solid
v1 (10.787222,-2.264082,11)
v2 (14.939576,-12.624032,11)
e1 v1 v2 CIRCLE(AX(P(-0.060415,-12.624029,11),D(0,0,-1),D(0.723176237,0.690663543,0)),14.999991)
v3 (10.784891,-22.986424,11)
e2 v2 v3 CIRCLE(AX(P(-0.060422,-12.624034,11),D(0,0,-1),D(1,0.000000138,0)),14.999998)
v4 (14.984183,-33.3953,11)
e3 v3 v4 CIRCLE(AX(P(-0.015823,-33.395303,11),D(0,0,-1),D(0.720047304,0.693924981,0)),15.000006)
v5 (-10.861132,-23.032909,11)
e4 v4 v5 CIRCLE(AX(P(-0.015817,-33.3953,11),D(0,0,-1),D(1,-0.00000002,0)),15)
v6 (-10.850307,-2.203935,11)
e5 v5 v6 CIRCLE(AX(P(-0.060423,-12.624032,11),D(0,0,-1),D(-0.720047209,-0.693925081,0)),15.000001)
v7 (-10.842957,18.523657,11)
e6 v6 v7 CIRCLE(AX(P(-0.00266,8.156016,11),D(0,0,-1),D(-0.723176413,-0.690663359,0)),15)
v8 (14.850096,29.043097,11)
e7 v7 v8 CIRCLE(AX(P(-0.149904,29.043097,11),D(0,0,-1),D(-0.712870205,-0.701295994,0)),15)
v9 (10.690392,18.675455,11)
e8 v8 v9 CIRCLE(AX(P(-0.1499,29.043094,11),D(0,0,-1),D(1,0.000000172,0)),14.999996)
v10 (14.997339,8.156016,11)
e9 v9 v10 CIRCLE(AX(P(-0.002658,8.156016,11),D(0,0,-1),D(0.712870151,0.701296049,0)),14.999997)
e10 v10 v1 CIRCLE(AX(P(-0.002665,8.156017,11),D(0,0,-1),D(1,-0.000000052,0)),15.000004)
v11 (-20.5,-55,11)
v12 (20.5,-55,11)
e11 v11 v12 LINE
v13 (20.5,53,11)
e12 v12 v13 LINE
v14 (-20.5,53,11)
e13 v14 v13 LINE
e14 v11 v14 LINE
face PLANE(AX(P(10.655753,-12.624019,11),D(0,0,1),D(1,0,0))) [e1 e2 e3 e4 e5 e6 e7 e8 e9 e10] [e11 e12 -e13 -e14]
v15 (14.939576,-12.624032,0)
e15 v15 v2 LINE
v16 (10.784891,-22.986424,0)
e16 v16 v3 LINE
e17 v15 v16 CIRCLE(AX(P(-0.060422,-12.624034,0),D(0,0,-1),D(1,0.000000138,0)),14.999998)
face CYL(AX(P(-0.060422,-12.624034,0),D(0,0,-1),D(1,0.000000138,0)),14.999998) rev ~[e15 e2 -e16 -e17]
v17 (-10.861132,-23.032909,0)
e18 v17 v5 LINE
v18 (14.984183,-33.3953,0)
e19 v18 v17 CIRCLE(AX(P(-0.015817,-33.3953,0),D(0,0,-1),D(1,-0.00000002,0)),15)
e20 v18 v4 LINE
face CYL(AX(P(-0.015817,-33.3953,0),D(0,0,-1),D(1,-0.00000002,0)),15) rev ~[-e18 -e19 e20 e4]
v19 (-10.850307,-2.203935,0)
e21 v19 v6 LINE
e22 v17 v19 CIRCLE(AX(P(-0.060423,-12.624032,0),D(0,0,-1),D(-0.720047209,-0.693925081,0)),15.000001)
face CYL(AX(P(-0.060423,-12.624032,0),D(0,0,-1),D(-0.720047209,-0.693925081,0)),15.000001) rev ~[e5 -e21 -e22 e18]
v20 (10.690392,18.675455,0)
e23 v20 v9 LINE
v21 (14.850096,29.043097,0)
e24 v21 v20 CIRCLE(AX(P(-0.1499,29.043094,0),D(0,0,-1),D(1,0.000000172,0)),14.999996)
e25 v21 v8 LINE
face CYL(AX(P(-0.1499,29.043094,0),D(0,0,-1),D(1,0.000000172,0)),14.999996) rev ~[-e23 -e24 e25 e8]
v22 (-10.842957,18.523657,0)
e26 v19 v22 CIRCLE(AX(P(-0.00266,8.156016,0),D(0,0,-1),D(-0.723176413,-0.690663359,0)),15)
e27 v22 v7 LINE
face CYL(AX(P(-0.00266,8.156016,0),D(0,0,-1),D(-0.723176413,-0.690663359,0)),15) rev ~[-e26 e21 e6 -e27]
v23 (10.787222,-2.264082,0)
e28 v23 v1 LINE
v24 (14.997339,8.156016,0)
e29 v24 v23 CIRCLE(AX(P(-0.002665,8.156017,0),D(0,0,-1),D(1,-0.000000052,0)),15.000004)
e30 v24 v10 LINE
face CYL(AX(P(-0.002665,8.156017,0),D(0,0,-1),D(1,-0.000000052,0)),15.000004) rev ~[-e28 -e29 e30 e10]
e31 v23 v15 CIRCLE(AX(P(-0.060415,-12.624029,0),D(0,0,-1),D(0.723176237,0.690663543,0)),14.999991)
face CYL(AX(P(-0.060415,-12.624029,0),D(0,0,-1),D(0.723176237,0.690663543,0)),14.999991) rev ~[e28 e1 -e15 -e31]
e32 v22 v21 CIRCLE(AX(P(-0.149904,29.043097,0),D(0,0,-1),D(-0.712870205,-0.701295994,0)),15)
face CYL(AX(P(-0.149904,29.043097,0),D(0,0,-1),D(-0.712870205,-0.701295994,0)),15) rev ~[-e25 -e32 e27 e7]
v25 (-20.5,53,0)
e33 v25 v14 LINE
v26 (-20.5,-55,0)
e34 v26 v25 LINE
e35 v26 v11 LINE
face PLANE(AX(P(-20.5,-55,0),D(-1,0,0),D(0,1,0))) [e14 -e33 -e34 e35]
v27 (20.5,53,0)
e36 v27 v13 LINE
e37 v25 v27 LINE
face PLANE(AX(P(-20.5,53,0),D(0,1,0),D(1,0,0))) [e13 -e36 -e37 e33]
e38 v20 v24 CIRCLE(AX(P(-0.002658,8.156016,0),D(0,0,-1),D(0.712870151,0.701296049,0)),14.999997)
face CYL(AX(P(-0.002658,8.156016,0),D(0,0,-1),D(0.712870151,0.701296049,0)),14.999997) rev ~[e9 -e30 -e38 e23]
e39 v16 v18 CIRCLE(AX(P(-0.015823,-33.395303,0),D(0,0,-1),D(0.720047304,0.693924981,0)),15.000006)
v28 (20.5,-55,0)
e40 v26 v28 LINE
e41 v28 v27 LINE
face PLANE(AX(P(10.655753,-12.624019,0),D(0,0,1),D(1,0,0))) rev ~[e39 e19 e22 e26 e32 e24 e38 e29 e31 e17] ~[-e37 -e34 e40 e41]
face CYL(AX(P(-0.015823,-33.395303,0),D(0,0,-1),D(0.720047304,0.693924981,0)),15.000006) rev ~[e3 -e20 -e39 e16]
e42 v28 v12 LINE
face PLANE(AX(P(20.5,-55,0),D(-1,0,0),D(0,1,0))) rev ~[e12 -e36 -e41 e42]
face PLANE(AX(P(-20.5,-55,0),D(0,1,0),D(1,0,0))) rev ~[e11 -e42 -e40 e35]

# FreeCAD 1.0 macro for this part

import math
import FreeCAD as App
import Part
import Sketcher
Q = App.Units.Quantity

doc = App.newDocument("Part")
body = doc.addObject("PartDesign::Body", "Body")

# Sketch on XY plane
sketch1 = body.newObject("Sketcher::SketchObject", "Sketch")
sketch1.AttachmentSupport = (doc.getObject("XY_Plane"), [""])
sketch1.MapMode = "FlatFace"
sketch1.addGeometry([
    Part.LineSegment(App.Vector(-20, 53, 0), App.Vector(-20, -55, 0)),  # 0
    Part.LineSegment(App.Vector(-20, -55, 0), App.Vector(20, -55, 0)),  # 1
    Part.LineSegment(App.Vector(20, -55, 0), App.Vector(20, 53, 0)),  # 2
    Part.LineSegment(App.Vector(20, 53, 0), App.Vector(-20, 53, 0)),  # 3
    Part.ArcOfCircle(Part.Circle(App.Vector(0, 8, 0), App.Vector(0, 0, 1), 15), math.radians(0), math.radians(45)),  # 4
    Part.ArcOfCircle(Part.Circle(App.Vector(0, 8, 0), App.Vector(0, 0, 1), 15), math.radians(-44), math.radians(0)),  # 5
    Part.ArcOfCircle(Part.Circle(App.Vector(0, -13, 0), App.Vector(0, 0, 1), 15), math.radians(0), math.radians(44)),  # 6
    Part.ArcOfCircle(Part.Circle(App.Vector(0, -13, 0), App.Vector(0, 0, 1), 15), math.radians(-44), math.radians(0)),  # 7
    Part.ArcOfCircle(Part.Circle(App.Vector(0, -33, 0), App.Vector(0, 0, 1), 15), math.radians(0), math.radians(44)),  # 8
    Part.ArcOfCircle(Part.Circle(App.Vector(0, -33, 0), App.Vector(0, 0, 1), 15), math.radians(136), math.radians(360)),  # 9
    Part.ArcOfCircle(Part.Circle(App.Vector(0, -13, 0), App.Vector(0, 0, 1), 15), math.radians(136), math.radians(224)),  # 10
    Part.ArcOfCircle(Part.Circle(App.Vector(0, 8, 0), App.Vector(0, 0, 1), 15), math.radians(136), math.radians(224)),  # 11
    Part.ArcOfCircle(Part.Circle(App.Vector(0, 29, 0), App.Vector(0, 0, 1), 15), math.radians(0), math.radians(225)),  # 12
    Part.ArcOfCircle(Part.Circle(App.Vector(0, 29, 0), App.Vector(0, 0, 1), 15), math.radians(-44), math.radians(0)),  # 13
], False)
sketch1.addConstraint([
    Sketcher.Constraint("Coincident", 0, 2, 1, 1),
    Sketcher.Constraint("Coincident", 1, 2, 2, 1),
    Sketcher.Constraint("Coincident", 2, 2, 3, 1),
    Sketcher.Constraint("Coincident", 3, 2, 0, 1),
    Sketcher.Constraint("Tangent", 4, 1, 5, 2),
    Sketcher.Constraint("Coincident", 5, 1, 6, 2),
    Sketcher.Constraint("Tangent", 6, 1, 7, 2),
    Sketcher.Constraint("Coincident", 7, 1, 8, 2),
    Sketcher.Constraint("Tangent", 8, 1, 9, 2),
    Sketcher.Constraint("Coincident", 9, 1, 10, 2),
    Sketcher.Constraint("Coincident", 10, 1, 11, 2),
    Sketcher.Constraint("Coincident", 11, 1, 12, 2),
    Sketcher.Constraint("Tangent", 12, 1, 13, 2),
    Sketcher.Constraint("Coincident", 13, 1, 4, 2),
    Sketcher.Constraint("Vertical", 0),
    Sketcher.Constraint("Horizontal", 1),
    Sketcher.Constraint("Vertical", 2),
    Sketcher.Constraint("Horizontal", 3),
    Sketcher.Constraint("Coincident", 10, 3, 6, 3),
    Sketcher.Constraint("Coincident", 11, 3, 4, 3),
    Sketcher.Constraint("Equal", 4, 7),
    Sketcher.Constraint("Equal", 5, 8),
    Sketcher.Constraint("Equal", 9, 10),
    Sketcher.Constraint("Equal", 10, 11),
    Sketcher.Constraint("Equal", 11, 12),
    Sketcher.Constraint("Equal", 4, 13),
    Sketcher.Constraint("Horizontal", 11, 3, 4, 1),
    Sketcher.Constraint("Horizontal", 10, 3, 6, 1),
    Sketcher.Constraint("Horizontal", 9, 3, 8, 1),
    Sketcher.Constraint("Radius", 9, Q("15 mm")),
    Sketcher.Constraint("DistanceX", 1, 1, 1, 2, Q("41 mm")),
    Sketcher.Constraint("DistanceY", 0, 2, 0, 1, Q("108 mm")),
    Sketcher.Constraint("DistanceY", 0, 2, -1, 1, Q("55 mm")),
    Sketcher.Constraint("DistanceX", 11, 3, 4, 1, Q("14.999999 mm")),
    Sketcher.Constraint("DistanceX", 10, 3, 6, 1, Q("14.999999 mm")),
    Sketcher.Constraint("DistanceX", 0, 2, -1, 1, Q("20.5 mm")),
    Sketcher.Constraint("Radius", 5, Q("15.000004 mm")),
    Sketcher.Constraint("DistanceY", 9, 3, -1, 1, Q("33.3953 mm")),
    Sketcher.Constraint("DistanceX", 13, 3, -1, 1, Q("0.1499 mm")),
    Sketcher.Constraint("DistanceX", 7, 3, 8, 3, Q("0.044599 mm")),
    Sketcher.Constraint("DistanceY", 5, 1, 4, 1, Q("10.420098 mm")),
    Sketcher.Constraint("DistanceX", 11, 1, 4, 3, Q("10.840299 mm")),
    Sketcher.Constraint("DistanceX", 4, 3, -1, 1, Q("0.002658 mm")),
    Sketcher.Constraint("DistanceY", 6, 3, -1, 1, Q("12.624029 mm")),
    Sketcher.Constraint("DistanceX", 7, 3, -1, 1, Q("0.060422 mm")),
    Sketcher.Constraint("DistanceY", 4, 1, 12, 1, Q("20.887081 mm")),
])
pad1 = body.newObject("PartDesign::Pad", "Pad")
pad1.Profile = sketch1
pad1.Length = 11

doc.recompute()
